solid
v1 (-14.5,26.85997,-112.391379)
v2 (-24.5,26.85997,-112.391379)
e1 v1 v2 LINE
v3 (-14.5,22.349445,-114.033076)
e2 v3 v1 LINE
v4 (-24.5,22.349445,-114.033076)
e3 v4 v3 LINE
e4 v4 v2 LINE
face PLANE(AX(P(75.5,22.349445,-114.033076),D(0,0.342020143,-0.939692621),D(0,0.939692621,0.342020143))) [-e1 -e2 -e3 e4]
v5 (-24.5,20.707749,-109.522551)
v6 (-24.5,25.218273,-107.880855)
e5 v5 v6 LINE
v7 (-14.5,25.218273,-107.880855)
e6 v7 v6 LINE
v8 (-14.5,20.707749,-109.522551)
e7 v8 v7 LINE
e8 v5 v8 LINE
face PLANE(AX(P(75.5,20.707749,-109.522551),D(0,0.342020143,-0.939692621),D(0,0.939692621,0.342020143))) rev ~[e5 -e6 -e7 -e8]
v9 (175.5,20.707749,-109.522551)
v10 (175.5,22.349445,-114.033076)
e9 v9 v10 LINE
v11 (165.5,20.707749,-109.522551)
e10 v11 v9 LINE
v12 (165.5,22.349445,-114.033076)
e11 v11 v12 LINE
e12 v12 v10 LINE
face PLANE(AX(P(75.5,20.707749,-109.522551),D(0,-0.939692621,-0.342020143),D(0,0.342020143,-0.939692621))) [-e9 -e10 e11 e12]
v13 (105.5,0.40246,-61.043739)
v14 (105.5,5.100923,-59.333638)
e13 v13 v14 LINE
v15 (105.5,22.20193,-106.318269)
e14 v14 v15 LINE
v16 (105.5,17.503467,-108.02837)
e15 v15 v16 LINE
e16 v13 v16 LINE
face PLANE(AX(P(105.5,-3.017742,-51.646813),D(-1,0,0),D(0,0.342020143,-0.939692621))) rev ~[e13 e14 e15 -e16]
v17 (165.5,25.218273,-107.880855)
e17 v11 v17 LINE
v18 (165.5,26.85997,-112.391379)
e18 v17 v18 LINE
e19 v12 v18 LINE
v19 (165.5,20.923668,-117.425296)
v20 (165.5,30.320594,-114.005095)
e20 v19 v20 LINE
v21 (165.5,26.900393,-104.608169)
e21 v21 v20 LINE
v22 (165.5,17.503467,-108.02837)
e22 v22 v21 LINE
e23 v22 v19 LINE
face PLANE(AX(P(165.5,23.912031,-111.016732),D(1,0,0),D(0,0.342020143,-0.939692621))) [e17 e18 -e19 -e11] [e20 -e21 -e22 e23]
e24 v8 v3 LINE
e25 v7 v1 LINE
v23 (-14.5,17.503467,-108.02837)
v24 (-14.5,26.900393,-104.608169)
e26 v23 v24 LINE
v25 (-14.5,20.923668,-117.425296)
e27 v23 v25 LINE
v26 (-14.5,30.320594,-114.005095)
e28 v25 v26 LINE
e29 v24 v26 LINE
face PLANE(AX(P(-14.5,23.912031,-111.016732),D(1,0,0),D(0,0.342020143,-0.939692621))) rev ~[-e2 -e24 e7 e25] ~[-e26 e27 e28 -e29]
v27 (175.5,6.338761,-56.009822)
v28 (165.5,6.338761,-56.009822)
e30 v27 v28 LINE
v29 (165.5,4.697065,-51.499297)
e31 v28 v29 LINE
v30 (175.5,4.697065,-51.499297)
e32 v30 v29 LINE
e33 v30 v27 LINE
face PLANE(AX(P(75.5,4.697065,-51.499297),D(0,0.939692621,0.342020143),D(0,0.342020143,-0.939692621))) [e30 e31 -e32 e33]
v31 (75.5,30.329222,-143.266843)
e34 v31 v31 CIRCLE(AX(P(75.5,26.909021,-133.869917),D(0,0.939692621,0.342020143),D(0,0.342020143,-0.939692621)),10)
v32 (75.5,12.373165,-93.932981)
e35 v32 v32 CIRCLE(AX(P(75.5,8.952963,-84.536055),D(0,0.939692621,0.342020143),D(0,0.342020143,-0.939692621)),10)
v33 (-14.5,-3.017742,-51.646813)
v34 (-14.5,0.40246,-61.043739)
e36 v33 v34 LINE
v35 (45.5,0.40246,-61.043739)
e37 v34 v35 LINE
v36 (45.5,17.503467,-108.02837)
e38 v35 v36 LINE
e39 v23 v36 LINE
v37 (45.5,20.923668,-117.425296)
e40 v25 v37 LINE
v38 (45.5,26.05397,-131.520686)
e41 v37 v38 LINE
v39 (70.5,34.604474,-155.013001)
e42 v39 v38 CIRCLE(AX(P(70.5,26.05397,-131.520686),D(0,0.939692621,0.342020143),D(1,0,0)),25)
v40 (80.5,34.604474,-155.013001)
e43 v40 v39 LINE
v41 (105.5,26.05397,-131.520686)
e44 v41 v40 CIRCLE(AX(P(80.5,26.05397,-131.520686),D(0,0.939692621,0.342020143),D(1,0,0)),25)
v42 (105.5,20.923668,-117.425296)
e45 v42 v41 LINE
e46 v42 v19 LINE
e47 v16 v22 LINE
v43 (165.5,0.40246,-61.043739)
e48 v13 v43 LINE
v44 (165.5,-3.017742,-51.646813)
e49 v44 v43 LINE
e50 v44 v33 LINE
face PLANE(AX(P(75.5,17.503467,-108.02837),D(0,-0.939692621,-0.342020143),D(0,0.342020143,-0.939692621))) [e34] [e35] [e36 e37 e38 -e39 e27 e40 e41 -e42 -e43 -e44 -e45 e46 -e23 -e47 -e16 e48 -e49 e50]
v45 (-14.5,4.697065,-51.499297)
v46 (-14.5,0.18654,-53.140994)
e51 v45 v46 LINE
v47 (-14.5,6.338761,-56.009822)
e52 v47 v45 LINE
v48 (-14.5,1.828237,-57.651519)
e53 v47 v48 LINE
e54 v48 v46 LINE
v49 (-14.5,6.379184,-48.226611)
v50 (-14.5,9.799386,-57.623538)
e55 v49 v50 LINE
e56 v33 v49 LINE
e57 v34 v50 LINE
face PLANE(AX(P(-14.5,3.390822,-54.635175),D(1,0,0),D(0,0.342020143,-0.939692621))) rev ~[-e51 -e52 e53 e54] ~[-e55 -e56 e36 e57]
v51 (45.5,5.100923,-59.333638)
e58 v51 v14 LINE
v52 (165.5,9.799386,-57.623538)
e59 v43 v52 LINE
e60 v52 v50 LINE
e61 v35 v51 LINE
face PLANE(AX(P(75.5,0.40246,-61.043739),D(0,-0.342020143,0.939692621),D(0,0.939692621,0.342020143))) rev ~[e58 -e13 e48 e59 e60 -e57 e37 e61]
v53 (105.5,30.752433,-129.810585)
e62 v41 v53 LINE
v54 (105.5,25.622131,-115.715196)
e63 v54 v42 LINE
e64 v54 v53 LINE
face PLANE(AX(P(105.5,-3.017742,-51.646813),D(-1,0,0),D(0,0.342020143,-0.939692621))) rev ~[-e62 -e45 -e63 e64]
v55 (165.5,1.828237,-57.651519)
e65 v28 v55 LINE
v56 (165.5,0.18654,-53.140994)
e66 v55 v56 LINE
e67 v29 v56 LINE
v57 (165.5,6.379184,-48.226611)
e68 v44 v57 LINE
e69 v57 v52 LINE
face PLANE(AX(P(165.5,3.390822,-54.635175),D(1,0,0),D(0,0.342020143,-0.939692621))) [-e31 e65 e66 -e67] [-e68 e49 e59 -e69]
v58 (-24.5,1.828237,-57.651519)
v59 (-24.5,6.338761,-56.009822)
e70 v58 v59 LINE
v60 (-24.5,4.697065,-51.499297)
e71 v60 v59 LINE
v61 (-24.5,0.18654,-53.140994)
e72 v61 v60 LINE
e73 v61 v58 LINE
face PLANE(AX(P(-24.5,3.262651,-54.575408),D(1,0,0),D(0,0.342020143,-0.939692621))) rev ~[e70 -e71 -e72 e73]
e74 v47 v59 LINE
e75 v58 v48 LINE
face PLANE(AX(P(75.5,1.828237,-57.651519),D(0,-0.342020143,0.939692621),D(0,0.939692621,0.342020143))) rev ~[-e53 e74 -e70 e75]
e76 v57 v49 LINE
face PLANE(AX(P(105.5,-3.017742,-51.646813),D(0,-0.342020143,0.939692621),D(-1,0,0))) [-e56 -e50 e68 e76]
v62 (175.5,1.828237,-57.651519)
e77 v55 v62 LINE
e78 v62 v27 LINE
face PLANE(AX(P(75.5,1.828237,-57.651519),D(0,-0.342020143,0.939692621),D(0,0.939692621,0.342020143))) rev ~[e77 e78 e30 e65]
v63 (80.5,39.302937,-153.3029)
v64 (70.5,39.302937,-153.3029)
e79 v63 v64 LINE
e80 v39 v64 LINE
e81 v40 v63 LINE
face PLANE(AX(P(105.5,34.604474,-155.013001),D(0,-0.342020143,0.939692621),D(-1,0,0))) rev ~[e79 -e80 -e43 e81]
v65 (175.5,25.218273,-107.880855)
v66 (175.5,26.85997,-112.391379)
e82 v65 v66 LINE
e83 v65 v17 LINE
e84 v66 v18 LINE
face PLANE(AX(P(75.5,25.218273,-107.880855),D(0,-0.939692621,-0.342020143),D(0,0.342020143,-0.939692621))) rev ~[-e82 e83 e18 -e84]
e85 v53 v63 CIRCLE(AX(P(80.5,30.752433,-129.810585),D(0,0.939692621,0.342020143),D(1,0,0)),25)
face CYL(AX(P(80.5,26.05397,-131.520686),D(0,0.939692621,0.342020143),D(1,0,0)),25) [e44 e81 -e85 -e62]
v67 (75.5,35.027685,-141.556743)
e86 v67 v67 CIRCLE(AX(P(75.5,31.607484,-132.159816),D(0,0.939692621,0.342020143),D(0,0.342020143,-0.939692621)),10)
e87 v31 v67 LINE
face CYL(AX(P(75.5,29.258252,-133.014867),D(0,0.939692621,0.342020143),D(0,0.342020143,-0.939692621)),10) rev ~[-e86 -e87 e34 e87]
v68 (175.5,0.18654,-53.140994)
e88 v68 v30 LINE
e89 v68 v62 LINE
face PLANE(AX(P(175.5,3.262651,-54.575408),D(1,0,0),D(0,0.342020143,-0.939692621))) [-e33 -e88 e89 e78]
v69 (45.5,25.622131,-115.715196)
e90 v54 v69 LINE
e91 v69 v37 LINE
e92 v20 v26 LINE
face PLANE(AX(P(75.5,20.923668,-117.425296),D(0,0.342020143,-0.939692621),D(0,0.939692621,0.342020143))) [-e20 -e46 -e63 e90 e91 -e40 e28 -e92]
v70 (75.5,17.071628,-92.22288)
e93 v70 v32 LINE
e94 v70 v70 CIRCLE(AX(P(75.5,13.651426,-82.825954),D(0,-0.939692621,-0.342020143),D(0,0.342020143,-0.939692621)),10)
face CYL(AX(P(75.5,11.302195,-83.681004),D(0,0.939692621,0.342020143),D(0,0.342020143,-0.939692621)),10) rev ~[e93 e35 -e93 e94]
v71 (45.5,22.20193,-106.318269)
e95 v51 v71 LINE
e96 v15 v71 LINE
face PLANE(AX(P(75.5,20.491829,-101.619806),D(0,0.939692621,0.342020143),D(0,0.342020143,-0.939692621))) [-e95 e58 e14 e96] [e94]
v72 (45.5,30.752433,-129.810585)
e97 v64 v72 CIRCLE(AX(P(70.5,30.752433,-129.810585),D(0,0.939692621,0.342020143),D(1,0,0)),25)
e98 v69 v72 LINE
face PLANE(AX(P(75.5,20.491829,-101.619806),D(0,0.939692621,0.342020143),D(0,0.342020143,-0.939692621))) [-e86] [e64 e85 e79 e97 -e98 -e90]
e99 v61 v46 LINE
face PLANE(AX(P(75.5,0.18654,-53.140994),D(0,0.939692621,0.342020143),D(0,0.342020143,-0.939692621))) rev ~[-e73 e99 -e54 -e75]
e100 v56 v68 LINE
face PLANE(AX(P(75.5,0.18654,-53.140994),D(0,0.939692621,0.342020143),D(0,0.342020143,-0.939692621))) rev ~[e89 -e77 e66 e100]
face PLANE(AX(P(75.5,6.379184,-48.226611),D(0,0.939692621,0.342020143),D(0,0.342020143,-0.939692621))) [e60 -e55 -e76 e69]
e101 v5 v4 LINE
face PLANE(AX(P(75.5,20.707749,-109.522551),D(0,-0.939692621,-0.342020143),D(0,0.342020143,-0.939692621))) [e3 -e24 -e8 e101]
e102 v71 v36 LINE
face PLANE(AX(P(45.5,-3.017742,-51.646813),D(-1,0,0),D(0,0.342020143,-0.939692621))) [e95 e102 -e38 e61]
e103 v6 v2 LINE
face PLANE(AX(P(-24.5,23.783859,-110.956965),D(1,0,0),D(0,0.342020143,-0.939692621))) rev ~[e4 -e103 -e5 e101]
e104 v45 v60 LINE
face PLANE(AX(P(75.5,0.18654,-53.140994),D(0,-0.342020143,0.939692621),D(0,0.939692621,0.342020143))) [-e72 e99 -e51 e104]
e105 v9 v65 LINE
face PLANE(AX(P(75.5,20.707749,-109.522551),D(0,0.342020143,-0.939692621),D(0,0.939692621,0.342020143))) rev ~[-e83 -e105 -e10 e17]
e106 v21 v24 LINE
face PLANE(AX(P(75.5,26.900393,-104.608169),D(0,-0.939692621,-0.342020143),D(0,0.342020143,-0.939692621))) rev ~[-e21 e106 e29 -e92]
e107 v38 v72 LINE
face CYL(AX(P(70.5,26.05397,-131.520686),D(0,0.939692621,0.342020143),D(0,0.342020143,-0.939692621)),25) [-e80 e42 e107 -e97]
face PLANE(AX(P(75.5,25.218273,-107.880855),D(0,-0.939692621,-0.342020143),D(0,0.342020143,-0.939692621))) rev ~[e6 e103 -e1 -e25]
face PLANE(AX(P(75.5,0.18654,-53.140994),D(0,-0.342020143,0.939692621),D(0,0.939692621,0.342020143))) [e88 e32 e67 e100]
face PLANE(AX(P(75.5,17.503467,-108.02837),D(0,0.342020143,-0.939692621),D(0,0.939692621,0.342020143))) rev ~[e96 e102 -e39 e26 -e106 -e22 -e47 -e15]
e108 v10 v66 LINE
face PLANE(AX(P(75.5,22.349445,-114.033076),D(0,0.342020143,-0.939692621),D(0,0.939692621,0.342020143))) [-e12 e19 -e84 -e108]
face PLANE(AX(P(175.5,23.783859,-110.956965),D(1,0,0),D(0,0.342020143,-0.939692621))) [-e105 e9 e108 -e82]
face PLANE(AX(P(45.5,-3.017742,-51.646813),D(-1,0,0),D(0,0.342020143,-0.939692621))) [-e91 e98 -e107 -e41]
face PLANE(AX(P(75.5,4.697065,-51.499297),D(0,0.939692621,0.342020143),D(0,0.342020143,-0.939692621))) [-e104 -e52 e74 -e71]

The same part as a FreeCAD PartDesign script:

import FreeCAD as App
import Part
import Sketcher

V = App.Vector


def edges_at(feature, points):
    """Names of the edges that pass closest to the given points."""
    edges = feature.Shape.Edges
    near = lambda p: min(range(len(edges)), key=lambda i: edges[i].distToShape(Part.Vertex(*p))[0])
    return sorted({f"Edge{near(p) + 1}" for p in points})

doc = App.newDocument("Part")
params = doc.addObject("Spreadsheet::Sheet", "Params")
for row, (alias, value) in enumerate([
    ("sketch1_width", "110 mm"),
    ("sketch1_height", "60 mm"),
    ("pad1_length", "5 mm"),
    ("sketch2_width", "10 mm"),
    ("pad2_length", "180 mm"),
    ("sketch3_width", "4.8 mm"),
    ("pad3_length", "200 mm"),
    ("sketch4_diameter", "20 mm"),
    ("pocket1_length", "7 mm"),
    ("fillet_radius", "25 mm"),
], start=1):
    params.set(f"A{row}", alias)
    params.set(f"B{row}", "=" + value)
    params.setAlias(f"B{row}", alias)

body = doc.addObject("PartDesign::Body", "Body")

# Sketch on XY plane
sketch1 = doc.addObject("Sketcher::SketchObject", "Sketch")
body.addObject(sketch1)
sketch1.AttachmentSupport = (doc.XY_Plane, [""])
sketch1.MapMode = "FlatFace"
sketch1.AttachmentOffset = App.Placement(V(0, 0, -2.5), App.Rotation())
sketch1.addGeometry(Part.LineSegment(V(-2, 30, 0), V(-2, -30, 0)), False)
sketch1.addGeometry(Part.LineSegment(V(-2, -30, 0), V(108, -30, 0)), False)
sketch1.addGeometry(Part.LineSegment(V(108, -30, 0), V(108, 30, 0)), False)
sketch1.addGeometry(Part.LineSegment(V(108, 30, 0), V(-2, 30, 0)), False)
sketch1.addConstraint(Sketcher.Constraint("Coincident", 0, 2, 1, 1))
sketch1.addConstraint(Sketcher.Constraint("Coincident", 1, 2, 2, 1))
sketch1.addConstraint(Sketcher.Constraint("Coincident", 2, 2, 3, 1))
sketch1.addConstraint(Sketcher.Constraint("Coincident", 3, 2, 0, 1))
sketch1.addConstraint(Sketcher.Constraint("Vertical", 0))
sketch1.addConstraint(Sketcher.Constraint("Horizontal", 1))
sketch1.addConstraint(Sketcher.Constraint("Vertical", 2))
sketch1.addConstraint(Sketcher.Constraint("Horizontal", 3))
sketch1.addConstraint(Sketcher.Constraint("DistanceX", 1, 1, 1, 2, 110.0))
sketch1.addConstraint(Sketcher.Constraint("DistanceY", 0, 2, 0, 1, 60.0))
sketch1.addConstraint(Sketcher.Constraint("DistanceY", 0, 2, -1, 1, 30.0))
sketch1.addConstraint(Sketcher.Constraint("DistanceX", 0, 2, -1, 1, 2.5))
sketch1.setExpression("Constraints[8]", "Params.sketch1_width")
sketch1.setExpression("Constraints[9]", "Params.sketch1_height")
pad1 = doc.addObject("PartDesign::Pad", "Pad")
body.addObject(pad1)
pad1.Profile = sketch1
pad1.setExpression("Length", "Params.pad1_length")

# Sketch on XZ plane
sketch2 = doc.addObject("Sketcher::SketchObject", "Sketch001")
body.addObject(sketch2)
sketch2.AttachmentSupport = (doc.XZ_Plane, [""])
sketch2.MapMode = "FlatFace"
sketch2.addGeometry(Part.LineSegment(V(-2, 8, 0), V(-2, -2, 0)), False)
sketch2.addGeometry(Part.LineSegment(V(-2, -2, 0), V(8, -2, 0)), False)
sketch2.addGeometry(Part.LineSegment(V(8, -2, 0), V(8, 8, 0)), False)
sketch2.addGeometry(Part.LineSegment(V(8, 8, 0), V(-2, 8, 0)), False)
sketch2.addGeometry(Part.LineSegment(V(58, 8, 0), V(58, -2, 0)), False)
sketch2.addGeometry(Part.LineSegment(V(58, -2, 0), V(68, -2, 0)), False)
sketch2.addGeometry(Part.LineSegment(V(68, -2, 0), V(68, 8, 0)), False)
sketch2.addGeometry(Part.LineSegment(V(68, 8, 0), V(58, 8, 0)), False)
sketch2.addConstraint(Sketcher.Constraint("Coincident", 0, 2, 1, 1))
sketch2.addConstraint(Sketcher.Constraint("Coincident", 1, 2, 2, 1))
sketch2.addConstraint(Sketcher.Constraint("Coincident", 2, 2, 3, 1))
sketch2.addConstraint(Sketcher.Constraint("Coincident", 3, 2, 0, 1))
sketch2.addConstraint(Sketcher.Constraint("Coincident", 4, 2, 5, 1))
sketch2.addConstraint(Sketcher.Constraint("Coincident", 5, 2, 6, 1))
sketch2.addConstraint(Sketcher.Constraint("Coincident", 6, 2, 7, 1))
sketch2.addConstraint(Sketcher.Constraint("Coincident", 7, 2, 4, 1))
sketch2.addConstraint(Sketcher.Constraint("Vertical", 0))
sketch2.addConstraint(Sketcher.Constraint("Horizontal", 1))
sketch2.addConstraint(Sketcher.Constraint("Vertical", 2))
sketch2.addConstraint(Sketcher.Constraint("Horizontal", 3))
sketch2.addConstraint(Sketcher.Constraint("Vertical", 4))
sketch2.addConstraint(Sketcher.Constraint("Horizontal", 5))
sketch2.addConstraint(Sketcher.Constraint("Vertical", 6))
sketch2.addConstraint(Sketcher.Constraint("Horizontal", 7))
sketch2.addConstraint(Sketcher.Constraint("Horizontal", 1, 2, 4, 2))
sketch2.addConstraint(Sketcher.Constraint("Horizontal", 3, 2, 6, 2))
sketch2.addConstraint(Sketcher.Constraint("Equal", 3, 5))
sketch2.addConstraint(Sketcher.Constraint("Equal", 7, 0))
sketch2.addConstraint(Sketcher.Constraint("DistanceX", 1, 1, 1, 2, 10.0))
sketch2.addConstraint(Sketcher.Constraint("DistanceX", 1, 2, 4, 2, 50.0))
sketch2.addConstraint(Sketcher.Constraint("DistanceX", 0, 2, -1, 1, 2.5))
sketch2.addConstraint(Sketcher.Constraint("DistanceY", 0, 2, -1, 1, 2.5))
sketch2.setExpression("Constraints[20]", "Params.sketch2_width")
pad2 = doc.addObject("PartDesign::Pad", "Pad001")
body.addObject(pad2)
pad2.Profile = sketch2
pad2.setExpression("Length", "Params.pad2_length")
pad2.Midplane = True

# Sketch on XZ plane
sketch3 = doc.addObject("Sketcher::SketchObject", "Sketch002")
body.addObject(sketch3)
sketch3.AttachmentSupport = (doc.XZ_Plane, [""])
sketch3.MapMode = "FlatFace"
sketch3.addGeometry(Part.LineSegment(V(0, 4.8, 0), V(0, 0, 0)), False)
sketch3.addGeometry(Part.LineSegment(V(0, 0, 0), V(4.8, 0, 0)), False)
sketch3.addGeometry(Part.LineSegment(V(4.8, 0, 0), V(4.8, 4.8, 0)), False)
sketch3.addGeometry(Part.LineSegment(V(4.8, 4.8, 0), V(0, 4.8, 0)), False)
sketch3.addGeometry(Part.LineSegment(V(60, 4.8, 0), V(60, 0, 0)), False)
sketch3.addGeometry(Part.LineSegment(V(60, 0, 0), V(64.8, 0, 0)), False)
sketch3.addGeometry(Part.LineSegment(V(64.8, 0, 0), V(64.8, 4.8, 0)), False)
sketch3.addGeometry(Part.LineSegment(V(64.8, 4.8, 0), V(60, 4.8, 0)), False)
sketch3.addConstraint(Sketcher.Constraint("Coincident", 0, 2, 1, 1))
sketch3.addConstraint(Sketcher.Constraint("Coincident", 1, 2, 2, 1))
sketch3.addConstraint(Sketcher.Constraint("Coincident", 2, 2, 3, 1))
sketch3.addConstraint(Sketcher.Constraint("Coincident", 3, 2, 0, 1))
sketch3.addConstraint(Sketcher.Constraint("Coincident", 4, 2, 5, 1))
sketch3.addConstraint(Sketcher.Constraint("Coincident", 5, 2, 6, 1))
sketch3.addConstraint(Sketcher.Constraint("Coincident", 6, 2, 7, 1))
sketch3.addConstraint(Sketcher.Constraint("Coincident", 7, 2, 4, 1))
sketch3.addConstraint(Sketcher.Constraint("Vertical", 0))
sketch3.addConstraint(Sketcher.Constraint("Horizontal", 1))
sketch3.addConstraint(Sketcher.Constraint("Vertical", 2))
sketch3.addConstraint(Sketcher.Constraint("Horizontal", 3))
sketch3.addConstraint(Sketcher.Constraint("Vertical", 4))
sketch3.addConstraint(Sketcher.Constraint("Horizontal", 5))
sketch3.addConstraint(Sketcher.Constraint("Vertical", 6))
sketch3.addConstraint(Sketcher.Constraint("Horizontal", 7))
sketch3.addConstraint(Sketcher.Constraint("Coincident", 0, 2, -1, 1))
sketch3.addConstraint(Sketcher.Constraint("PointOnObject", 4, 2, -1))
sketch3.addConstraint(Sketcher.Constraint("Horizontal", 3, 2, 6, 2))
sketch3.addConstraint(Sketcher.Constraint("Equal", 3, 5))
sketch3.addConstraint(Sketcher.Constraint("Equal", 7, 0))
sketch3.addConstraint(Sketcher.Constraint("DistanceX", 1, 1, 1, 2, 4.8))
sketch3.addConstraint(Sketcher.Constraint("DistanceX", -1, 1, 4, 2, 60.0))
sketch3.setExpression("Constraints[21]", "Params.sketch3_width")
pad3 = doc.addObject("PartDesign::Pad", "Pad002")
body.addObject(pad3)
pad3.Profile = sketch3
pad3.setExpression("Length", "Params.pad3_length")
pad3.Midplane = True

# Sketch on XY plane
sketch4 = doc.addObject("Sketcher::SketchObject", "Sketch003")
body.addObject(sketch4)
sketch4.AttachmentSupport = (doc.XY_Plane, [""])
sketch4.MapMode = "FlatFace"
sketch4.addGeometry(Part.Circle(V(32, 0, 0), V(0, 0, 1), 10), False)
sketch4.addGeometry(Part.Circle(V(85, 0, 0), V(0, 0, 1), 10), False)
sketch4.addConstraint(Sketcher.Constraint("Equal", 0, 1))
sketch4.addConstraint(Sketcher.Constraint("PointOnObject", 0, 3, -1))
sketch4.addConstraint(Sketcher.Constraint("PointOnObject", 1, 3, -1))
sketch4.addConstraint(Sketcher.Constraint("Diameter", 0, 20.0))
sketch4.addConstraint(Sketcher.Constraint("DistanceX", -1, 1, 1, 3, 85.0))
sketch4.addConstraint(Sketcher.Constraint("DistanceX", -1, 1, 0, 3, 32.5))
sketch4.setExpression("Constraints[3]", "Params.sketch4_diameter")
pocket1 = doc.addObject("PartDesign::Pocket", "Pocket")
body.addObject(pocket1)
pocket1.Profile = sketch4
pocket1.setExpression("Length", "Params.pocket1_length")
pocket1.Midplane = True
doc.recompute()

fillet = doc.addObject("PartDesign::Fillet", "Fillet")
body.addObject(fillet)
fillet.Base = (pocket1, edges_at(pocket1, [(107.5, 30, 0), (107.5, -30, 0)]))
fillet.setExpression("Radius", "Params.fillet_radius")
body2 = doc.addObject("PartDesign::Body", "Body001")
doc.recompute()

body.Placement = App.Placement(V(0, 0, 0), App.Rotation(V(0, 1, 0), 70))
boolean = doc.addObject("PartDesign::Boolean", "Boolean")
body2.addObject(boolean)
boolean.Type = "Fuse"
boolean.addObjects([body])
body3 = doc.addObject("PartDesign::Body", "Body002")
doc.recompute()

body2.Placement = App.Placement(V(75.5, 0.18654, -53.140994), App.Rotation(V(0, 0, 1), 90))
boolean2 = doc.addObject("PartDesign::Boolean", "Boolean001")
body3.addObject(boolean2)
boolean2.Type = "Fuse"
boolean2.addObjects([body2])

doc.recompute()
